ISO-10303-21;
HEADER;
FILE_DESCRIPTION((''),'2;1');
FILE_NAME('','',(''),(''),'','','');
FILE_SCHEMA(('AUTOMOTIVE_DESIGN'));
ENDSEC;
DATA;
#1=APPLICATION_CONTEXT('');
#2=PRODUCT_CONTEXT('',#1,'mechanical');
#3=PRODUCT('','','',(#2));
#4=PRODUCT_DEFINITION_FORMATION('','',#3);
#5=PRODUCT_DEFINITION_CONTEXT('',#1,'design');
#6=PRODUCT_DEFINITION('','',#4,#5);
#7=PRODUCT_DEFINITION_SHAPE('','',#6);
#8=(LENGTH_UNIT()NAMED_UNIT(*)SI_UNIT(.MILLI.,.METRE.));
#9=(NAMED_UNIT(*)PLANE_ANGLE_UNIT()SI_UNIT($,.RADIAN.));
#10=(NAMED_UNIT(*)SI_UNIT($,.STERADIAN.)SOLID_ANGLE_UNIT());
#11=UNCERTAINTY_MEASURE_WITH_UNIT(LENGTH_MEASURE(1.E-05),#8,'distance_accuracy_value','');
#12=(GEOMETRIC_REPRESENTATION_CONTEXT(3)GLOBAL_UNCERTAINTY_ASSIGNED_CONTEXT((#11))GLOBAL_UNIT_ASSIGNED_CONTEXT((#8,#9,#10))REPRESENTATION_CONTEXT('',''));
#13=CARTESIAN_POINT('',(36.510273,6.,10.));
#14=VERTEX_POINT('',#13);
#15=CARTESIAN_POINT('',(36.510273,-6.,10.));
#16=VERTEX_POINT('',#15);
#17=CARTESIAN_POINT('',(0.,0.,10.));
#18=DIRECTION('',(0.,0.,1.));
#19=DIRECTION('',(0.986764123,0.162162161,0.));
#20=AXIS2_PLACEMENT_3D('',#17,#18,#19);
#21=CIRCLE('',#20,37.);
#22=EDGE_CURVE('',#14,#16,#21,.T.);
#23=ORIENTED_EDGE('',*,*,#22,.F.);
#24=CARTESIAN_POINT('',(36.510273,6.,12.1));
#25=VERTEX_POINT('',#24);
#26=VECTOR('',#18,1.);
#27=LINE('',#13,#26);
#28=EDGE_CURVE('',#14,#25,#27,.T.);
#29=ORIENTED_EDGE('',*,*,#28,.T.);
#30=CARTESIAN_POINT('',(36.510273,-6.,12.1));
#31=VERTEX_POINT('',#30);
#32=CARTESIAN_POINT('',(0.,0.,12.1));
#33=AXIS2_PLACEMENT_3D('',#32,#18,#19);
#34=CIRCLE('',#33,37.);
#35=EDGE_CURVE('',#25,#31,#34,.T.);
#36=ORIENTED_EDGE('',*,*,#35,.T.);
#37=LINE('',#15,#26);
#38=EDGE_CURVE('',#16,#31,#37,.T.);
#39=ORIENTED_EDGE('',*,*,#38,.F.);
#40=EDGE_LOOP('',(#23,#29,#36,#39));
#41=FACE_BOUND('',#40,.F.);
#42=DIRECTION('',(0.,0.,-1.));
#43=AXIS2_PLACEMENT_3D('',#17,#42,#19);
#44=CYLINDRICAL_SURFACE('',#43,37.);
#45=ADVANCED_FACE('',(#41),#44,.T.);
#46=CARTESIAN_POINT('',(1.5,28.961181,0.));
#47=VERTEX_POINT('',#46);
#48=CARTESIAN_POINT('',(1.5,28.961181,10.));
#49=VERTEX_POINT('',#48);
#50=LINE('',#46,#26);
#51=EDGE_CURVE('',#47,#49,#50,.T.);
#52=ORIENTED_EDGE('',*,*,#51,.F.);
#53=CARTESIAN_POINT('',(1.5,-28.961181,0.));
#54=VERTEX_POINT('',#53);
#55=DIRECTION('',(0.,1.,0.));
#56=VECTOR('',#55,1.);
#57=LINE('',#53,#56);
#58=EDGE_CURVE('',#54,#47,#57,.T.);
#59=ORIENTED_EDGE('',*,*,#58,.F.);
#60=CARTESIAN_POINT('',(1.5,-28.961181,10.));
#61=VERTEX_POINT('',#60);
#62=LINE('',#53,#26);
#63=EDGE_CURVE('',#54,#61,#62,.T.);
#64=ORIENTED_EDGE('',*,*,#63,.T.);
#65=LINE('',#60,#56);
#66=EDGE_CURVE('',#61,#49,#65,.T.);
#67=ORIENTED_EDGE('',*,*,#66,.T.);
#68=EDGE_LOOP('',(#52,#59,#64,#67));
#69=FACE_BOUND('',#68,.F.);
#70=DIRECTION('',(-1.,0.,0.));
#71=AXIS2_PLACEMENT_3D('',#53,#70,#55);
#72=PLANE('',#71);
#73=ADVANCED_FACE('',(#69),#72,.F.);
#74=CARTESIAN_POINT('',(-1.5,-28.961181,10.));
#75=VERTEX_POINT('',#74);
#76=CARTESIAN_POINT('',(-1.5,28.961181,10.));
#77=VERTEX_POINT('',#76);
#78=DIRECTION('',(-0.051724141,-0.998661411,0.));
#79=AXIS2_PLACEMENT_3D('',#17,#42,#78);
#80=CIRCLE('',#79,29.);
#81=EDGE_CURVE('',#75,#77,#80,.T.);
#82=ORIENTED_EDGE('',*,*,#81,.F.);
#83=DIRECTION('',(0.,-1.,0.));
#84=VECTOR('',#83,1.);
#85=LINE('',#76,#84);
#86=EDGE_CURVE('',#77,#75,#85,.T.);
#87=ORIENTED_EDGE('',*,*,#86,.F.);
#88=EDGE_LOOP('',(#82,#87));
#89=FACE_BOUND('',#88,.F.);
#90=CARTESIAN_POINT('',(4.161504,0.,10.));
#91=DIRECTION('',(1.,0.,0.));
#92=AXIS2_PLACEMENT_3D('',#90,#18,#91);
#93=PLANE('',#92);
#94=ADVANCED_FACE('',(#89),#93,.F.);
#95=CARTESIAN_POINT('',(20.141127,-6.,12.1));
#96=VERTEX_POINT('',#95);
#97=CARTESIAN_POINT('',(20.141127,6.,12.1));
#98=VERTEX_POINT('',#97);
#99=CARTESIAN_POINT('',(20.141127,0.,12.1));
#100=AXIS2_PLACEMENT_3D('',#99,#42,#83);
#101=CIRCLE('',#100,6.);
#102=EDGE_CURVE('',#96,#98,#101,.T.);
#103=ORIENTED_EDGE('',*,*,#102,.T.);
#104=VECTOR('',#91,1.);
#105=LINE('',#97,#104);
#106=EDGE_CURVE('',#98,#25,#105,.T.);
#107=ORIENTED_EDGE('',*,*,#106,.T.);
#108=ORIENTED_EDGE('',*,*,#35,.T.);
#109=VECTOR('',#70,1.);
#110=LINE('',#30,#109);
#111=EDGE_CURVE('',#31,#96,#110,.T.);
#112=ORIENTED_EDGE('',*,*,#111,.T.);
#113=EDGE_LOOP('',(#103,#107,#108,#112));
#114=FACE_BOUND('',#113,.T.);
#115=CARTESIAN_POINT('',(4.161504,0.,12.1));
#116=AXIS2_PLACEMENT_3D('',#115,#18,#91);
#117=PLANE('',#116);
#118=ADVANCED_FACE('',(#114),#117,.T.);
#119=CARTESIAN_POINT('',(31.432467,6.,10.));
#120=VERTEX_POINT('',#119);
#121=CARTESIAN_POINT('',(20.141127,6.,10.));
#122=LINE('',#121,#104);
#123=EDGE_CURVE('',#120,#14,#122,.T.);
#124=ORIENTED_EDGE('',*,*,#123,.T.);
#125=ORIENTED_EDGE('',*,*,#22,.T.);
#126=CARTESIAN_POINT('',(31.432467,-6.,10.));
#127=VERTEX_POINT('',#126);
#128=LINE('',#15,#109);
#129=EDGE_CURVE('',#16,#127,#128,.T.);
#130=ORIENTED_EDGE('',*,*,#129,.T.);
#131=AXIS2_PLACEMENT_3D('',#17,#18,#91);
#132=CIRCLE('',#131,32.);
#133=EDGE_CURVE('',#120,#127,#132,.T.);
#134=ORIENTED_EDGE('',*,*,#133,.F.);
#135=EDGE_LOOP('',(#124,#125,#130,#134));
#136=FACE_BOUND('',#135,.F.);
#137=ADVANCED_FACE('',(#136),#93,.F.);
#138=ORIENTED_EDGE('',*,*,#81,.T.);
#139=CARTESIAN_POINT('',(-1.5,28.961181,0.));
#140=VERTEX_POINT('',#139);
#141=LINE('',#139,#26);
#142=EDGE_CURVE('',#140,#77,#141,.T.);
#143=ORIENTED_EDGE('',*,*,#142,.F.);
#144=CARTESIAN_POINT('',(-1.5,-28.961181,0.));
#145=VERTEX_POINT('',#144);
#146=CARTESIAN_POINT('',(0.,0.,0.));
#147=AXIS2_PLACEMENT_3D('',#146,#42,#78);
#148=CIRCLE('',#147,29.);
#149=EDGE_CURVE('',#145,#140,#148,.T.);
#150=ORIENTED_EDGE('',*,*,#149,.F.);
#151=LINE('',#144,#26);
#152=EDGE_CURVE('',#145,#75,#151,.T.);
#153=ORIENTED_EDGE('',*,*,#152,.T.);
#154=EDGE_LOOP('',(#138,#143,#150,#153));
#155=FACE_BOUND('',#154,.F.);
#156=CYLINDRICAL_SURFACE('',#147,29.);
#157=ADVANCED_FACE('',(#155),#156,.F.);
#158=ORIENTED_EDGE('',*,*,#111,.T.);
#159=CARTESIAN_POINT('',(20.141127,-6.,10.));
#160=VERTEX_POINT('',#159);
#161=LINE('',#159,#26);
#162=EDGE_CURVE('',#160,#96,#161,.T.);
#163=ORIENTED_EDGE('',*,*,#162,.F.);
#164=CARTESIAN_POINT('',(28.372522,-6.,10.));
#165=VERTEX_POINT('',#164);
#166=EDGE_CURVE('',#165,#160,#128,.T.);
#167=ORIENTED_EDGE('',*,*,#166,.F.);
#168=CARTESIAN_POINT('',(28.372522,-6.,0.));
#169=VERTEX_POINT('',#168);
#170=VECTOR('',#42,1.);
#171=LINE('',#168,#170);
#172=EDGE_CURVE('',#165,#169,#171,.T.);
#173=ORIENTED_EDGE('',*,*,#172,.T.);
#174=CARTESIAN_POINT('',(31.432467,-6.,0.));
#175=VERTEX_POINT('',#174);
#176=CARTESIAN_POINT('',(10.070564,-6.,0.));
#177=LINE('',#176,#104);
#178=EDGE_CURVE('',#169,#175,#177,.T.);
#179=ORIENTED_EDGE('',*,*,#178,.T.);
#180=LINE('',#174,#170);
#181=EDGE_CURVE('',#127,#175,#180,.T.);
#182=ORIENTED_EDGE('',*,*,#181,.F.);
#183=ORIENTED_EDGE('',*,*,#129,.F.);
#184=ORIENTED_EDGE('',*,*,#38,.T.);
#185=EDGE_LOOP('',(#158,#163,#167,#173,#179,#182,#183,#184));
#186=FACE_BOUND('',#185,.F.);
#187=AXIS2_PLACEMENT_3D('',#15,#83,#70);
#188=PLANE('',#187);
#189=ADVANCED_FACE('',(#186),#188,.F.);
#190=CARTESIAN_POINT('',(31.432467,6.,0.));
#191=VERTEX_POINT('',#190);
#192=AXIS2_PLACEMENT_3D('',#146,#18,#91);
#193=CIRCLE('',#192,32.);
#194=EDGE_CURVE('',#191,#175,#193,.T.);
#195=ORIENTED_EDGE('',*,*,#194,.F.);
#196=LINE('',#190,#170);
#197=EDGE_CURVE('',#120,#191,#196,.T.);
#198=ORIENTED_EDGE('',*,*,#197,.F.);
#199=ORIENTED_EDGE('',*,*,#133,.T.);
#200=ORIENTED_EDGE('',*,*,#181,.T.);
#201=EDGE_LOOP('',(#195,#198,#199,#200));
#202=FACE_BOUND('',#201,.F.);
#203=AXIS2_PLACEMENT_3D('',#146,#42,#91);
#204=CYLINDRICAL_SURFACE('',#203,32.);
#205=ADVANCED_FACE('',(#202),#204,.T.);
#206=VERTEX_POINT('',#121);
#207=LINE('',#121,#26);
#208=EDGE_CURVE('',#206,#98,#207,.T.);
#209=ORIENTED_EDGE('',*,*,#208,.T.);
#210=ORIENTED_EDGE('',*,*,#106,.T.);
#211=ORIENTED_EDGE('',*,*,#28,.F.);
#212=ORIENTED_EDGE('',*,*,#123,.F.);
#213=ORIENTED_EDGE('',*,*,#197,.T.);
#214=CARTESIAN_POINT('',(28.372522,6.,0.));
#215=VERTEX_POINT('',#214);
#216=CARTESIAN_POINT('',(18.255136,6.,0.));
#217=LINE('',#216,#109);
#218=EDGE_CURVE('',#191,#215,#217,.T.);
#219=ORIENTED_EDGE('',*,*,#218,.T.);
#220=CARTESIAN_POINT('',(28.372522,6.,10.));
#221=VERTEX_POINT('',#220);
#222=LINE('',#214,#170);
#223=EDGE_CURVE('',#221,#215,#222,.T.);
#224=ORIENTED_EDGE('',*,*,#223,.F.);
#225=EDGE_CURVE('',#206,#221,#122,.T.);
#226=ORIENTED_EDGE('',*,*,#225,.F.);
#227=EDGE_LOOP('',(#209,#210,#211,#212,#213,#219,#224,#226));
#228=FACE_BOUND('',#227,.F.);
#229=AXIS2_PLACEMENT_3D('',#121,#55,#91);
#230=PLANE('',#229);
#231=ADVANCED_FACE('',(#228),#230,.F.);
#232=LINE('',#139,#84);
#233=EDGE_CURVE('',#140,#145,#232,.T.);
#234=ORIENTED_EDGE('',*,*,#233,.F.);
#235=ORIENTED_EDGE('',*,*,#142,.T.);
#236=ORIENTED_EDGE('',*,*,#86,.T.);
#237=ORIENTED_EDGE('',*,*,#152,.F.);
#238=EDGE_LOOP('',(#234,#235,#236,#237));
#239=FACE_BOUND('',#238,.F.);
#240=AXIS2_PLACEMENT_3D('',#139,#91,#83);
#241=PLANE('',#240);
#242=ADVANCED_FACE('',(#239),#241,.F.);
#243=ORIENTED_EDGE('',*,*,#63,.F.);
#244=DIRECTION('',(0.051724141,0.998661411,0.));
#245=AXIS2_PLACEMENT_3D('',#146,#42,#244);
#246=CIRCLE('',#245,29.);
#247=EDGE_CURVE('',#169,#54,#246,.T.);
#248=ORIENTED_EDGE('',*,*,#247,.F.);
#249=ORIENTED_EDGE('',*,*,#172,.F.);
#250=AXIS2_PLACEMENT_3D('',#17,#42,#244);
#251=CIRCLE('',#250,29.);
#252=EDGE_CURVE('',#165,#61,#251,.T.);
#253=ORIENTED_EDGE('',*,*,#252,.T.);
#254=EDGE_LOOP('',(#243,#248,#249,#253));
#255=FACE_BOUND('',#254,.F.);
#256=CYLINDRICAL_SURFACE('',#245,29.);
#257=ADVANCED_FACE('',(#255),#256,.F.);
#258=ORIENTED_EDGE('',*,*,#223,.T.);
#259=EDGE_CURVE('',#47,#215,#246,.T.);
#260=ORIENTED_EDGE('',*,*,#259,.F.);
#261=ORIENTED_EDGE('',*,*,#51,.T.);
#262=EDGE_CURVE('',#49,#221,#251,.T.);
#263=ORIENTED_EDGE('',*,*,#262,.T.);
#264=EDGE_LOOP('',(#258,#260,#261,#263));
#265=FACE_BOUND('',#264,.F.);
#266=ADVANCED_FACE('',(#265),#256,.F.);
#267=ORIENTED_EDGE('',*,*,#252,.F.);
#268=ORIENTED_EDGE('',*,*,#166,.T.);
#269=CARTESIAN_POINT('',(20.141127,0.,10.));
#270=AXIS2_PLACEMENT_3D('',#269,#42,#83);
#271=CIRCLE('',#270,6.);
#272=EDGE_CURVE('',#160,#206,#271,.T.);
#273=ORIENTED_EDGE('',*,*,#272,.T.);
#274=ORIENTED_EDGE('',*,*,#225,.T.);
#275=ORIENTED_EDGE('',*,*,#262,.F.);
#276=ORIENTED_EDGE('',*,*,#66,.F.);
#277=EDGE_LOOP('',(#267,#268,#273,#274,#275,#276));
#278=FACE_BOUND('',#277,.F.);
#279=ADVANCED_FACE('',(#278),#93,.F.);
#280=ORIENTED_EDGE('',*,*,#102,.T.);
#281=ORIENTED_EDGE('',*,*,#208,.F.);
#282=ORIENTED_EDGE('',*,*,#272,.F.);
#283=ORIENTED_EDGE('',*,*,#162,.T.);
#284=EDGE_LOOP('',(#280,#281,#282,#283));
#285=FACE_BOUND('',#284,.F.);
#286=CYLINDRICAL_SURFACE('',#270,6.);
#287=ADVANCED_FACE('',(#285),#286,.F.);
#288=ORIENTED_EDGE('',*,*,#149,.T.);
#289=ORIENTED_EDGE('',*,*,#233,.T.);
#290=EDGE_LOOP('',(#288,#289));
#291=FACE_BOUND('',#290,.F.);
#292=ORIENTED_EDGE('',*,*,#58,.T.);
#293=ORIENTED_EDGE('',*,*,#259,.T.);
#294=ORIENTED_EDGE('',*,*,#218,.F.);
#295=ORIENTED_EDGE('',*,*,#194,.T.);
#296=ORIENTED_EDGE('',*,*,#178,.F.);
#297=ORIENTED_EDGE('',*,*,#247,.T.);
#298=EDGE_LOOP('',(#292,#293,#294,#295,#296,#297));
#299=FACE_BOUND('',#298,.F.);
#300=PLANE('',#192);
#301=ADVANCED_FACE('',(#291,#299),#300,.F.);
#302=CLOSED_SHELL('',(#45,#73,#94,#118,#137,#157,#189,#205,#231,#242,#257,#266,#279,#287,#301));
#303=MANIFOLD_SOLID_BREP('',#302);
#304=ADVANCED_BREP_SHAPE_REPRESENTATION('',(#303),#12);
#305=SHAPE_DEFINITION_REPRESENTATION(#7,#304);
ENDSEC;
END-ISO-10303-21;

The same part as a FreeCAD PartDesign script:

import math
import FreeCAD as App
import Part
import Sketcher
from FreeCAD import Vector

doc = App.newDocument("Part")
params = doc.addObject("Spreadsheet::Sheet", "Params")
for row, (alias, value) in enumerate([
    ("sketch1_diameter", "64 mm"),
    ("sketch1_radius", "29 mm"),
    ("pad1_length", "10 mm"),
    ("sketch2_radius", "37 mm"),
    ("sketch2_radius2", "6 mm"),
    ("pad2_length", "2.1 mm"),
    ("sketch3_radius", "6 mm"),
    ("pocket1_length", "25 mm"),
], start=1):
    params.set(f"A{row}", alias)
    params.set(f"B{row}", "=" + value)
    params.setAlias(f"B{row}", alias)

body = doc.addObject("PartDesign::Body", "Body")

# Sketch on XY plane
sketch1 = body.newObject("Sketcher::SketchObject", "Sketch")
sketch1.AttachmentSupport = (doc.getObject("XY_Plane"), [""])
sketch1.MapMode = "FlatFace"
sketch1.addGeometry(Part.Circle(Vector(0, 0, 0), Vector(0, 0, 1), 32), False)
sketch1.addGeometry(Part.LineSegment(Vector(-1.5, 28.961181, 0), Vector(-1.5, -28.961181, 0)), False)
sketch1.addGeometry(Part.ArcOfCircle(Part.Circle(Vector(0, 0, 0), Vector(0, 0, 1), 29), math.radians(92.964898), math.radians(267.035102)), False)
sketch1.addGeometry(Part.LineSegment(Vector(1.5, -28.961181, 0), Vector(1.5, 28.961181, 0)), False)
sketch1.addGeometry(Part.ArcOfCircle(Part.Circle(Vector(0, 0, 0), Vector(0, 0, 1), 29), math.radians(-87.035102), math.radians(87.035102)), False)
sketch1.addConstraint(Sketcher.Constraint("Coincident", 1, 1, 2, 1))
sketch1.addConstraint(Sketcher.Constraint("Coincident", 2, 2, 1, 2))
sketch1.addConstraint(Sketcher.Constraint("Coincident", 3, 1, 4, 1))
sketch1.addConstraint(Sketcher.Constraint("Coincident", 4, 2, 3, 2))
sketch1.addConstraint(Sketcher.Constraint("Vertical", 1))
sketch1.addConstraint(Sketcher.Constraint("Vertical", 3))
sketch1.addConstraint(Sketcher.Constraint("Coincident", 0, 3, -1, 1))
sketch1.addConstraint(Sketcher.Constraint("Coincident", 2, 3, -1, 1))
sketch1.addConstraint(Sketcher.Constraint("Coincident", 4, 3, -1, 1))
sketch1.addConstraint(Sketcher.Constraint("Equal", 2, 4))
sketch1.addConstraint(Sketcher.Constraint("Horizontal", 2, 2, 3, 1))
sketch1.addConstraint(Sketcher.Constraint("Diameter", 0, 64.0))
sketch1.addConstraint(Sketcher.Constraint("Radius", 2, 29.0))
sketch1.addConstraint(Sketcher.Constraint("DistanceX", 2, 2, 3, 1, 3.0))
sketch1.setExpression("Constraints[11]", "Params.sketch1_diameter")
sketch1.setExpression("Constraints[12]", "Params.sketch1_radius")
pad1 = body.newObject("PartDesign::Pad", "Pad")
pad1.Profile = sketch1
pad1.setExpression("Length", "Params.pad1_length")

# Sketch on XY plane
sketch2 = body.newObject("Sketcher::SketchObject", "Sketch001")
sketch2.AttachmentSupport = (doc.getObject("XY_Plane"), [""])
sketch2.MapMode = "FlatFace"
sketch2.AttachmentOffset = App.Placement(Vector(0, 0, 10), App.Rotation())
sketch2.addGeometry(Part.LineSegment(Vector(20.141127, 6, 0), Vector(36.510273, 6, 0)), False)
sketch2.addGeometry(Part.ArcOfCircle(Part.Circle(Vector(0, 0, 0), Vector(0, 0, 1), 37), math.radians(9.332418), math.radians(350.667582)), False)
sketch2.addGeometry(Part.LineSegment(Vector(36.510273, -6, 0), Vector(20.141127, -6, 0)), False)
sketch2.addGeometry(Part.ArcOfCircle(Part.Circle(Vector(20.141127, 0, 0), Vector(0, 0, 1), 6), math.radians(90), math.radians(270)), False)
sketch2.addConstraint(Sketcher.Constraint("Coincident", 0, 2, 1, 1))
sketch2.addConstraint(Sketcher.Constraint("Coincident", 1, 2, 2, 1))
sketch2.addConstraint(Sketcher.Constraint("Tangent", 2, 2, 3, 2))
sketch2.addConstraint(Sketcher.Constraint("Tangent", 3, 1, 0, 1))
sketch2.addConstraint(Sketcher.Constraint("Horizontal", 0))
sketch2.addConstraint(Sketcher.Constraint("Horizontal", 2))
sketch2.addConstraint(Sketcher.Constraint("Coincident", 1, 3, -1, 1))
sketch2.addConstraint(Sketcher.Constraint("PointOnObject", 3, 3, -1))
sketch2.addConstraint(Sketcher.Constraint("Radius", 1, 37.0))
sketch2.addConstraint(Sketcher.Constraint("Radius", 3, 6.0))
sketch2.addConstraint(Sketcher.Constraint("DistanceX", 0, 1, 0, 2, 16.369146))
sketch2.setExpression("Constraints[8]", "Params.sketch2_radius")
sketch2.setExpression("Constraints[9]", "Params.sketch2_radius2")
pad2 = body.newObject("PartDesign::Pad", "Pad001")
pad2.Profile = sketch2
pad2.setExpression("Length", "Params.pad2_length")

# Sketch on XY plane
sketch3 = body.newObject("Sketcher::SketchObject", "Sketch002")
sketch3.AttachmentSupport = (doc.getObject("XY_Plane"), [""])
sketch3.MapMode = "FlatFace"
sketch3.AttachmentOffset = App.Placement(Vector(0, 0, 10), App.Rotation())
sketch3.addGeometry(Part.LineSegment(Vector(36.510273, 6, 0), Vector(20.141127, 6, 0)), False)
sketch3.addGeometry(Part.ArcOfCircle(Part.Circle(Vector(20.141127, 0, 0), Vector(0, 0, 1), 6), math.radians(90), math.radians(270)), False)
sketch3.addGeometry(Part.LineSegment(Vector(20.141127, -6, 0), Vector(36.510273, -6, 0)), False)
sketch3.addGeometry(Part.LineSegment(Vector(36.510273, -6, 0), Vector(36.510273, 6, 0)), False)
sketch3.addConstraint(Sketcher.Constraint("Tangent", 0, 2, 1, 1))
sketch3.addConstraint(Sketcher.Constraint("Tangent", 1, 2, 2, 1))
sketch3.addConstraint(Sketcher.Constraint("Coincident", 2, 2, 3, 1))
sketch3.addConstraint(Sketcher.Constraint("Coincident", 3, 2, 0, 1))
sketch3.addConstraint(Sketcher.Constraint("Horizontal", 0))
sketch3.addConstraint(Sketcher.Constraint("Horizontal", 2))
sketch3.addConstraint(Sketcher.Constraint("Vertical", 3))
sketch3.addConstraint(Sketcher.Constraint("PointOnObject", 1, 3, -1))
sketch3.addConstraint(Sketcher.Constraint("Radius", 1, 6.0))
sketch3.addConstraint(Sketcher.Constraint("DistanceX", 0, 2, 0, 1, 16.369146))
sketch3.addConstraint(Sketcher.Constraint("DistanceX", -1, 1, 1, 3, 20.141127))
sketch3.setExpression("Constraints[8]", "Params.sketch3_radius")
pocket1 = body.newObject("PartDesign::Pocket", "Pocket")
pocket1.Profile = sketch3
pocket1.setExpression("Length", "Params.pocket1_length")

doc.recompute()
